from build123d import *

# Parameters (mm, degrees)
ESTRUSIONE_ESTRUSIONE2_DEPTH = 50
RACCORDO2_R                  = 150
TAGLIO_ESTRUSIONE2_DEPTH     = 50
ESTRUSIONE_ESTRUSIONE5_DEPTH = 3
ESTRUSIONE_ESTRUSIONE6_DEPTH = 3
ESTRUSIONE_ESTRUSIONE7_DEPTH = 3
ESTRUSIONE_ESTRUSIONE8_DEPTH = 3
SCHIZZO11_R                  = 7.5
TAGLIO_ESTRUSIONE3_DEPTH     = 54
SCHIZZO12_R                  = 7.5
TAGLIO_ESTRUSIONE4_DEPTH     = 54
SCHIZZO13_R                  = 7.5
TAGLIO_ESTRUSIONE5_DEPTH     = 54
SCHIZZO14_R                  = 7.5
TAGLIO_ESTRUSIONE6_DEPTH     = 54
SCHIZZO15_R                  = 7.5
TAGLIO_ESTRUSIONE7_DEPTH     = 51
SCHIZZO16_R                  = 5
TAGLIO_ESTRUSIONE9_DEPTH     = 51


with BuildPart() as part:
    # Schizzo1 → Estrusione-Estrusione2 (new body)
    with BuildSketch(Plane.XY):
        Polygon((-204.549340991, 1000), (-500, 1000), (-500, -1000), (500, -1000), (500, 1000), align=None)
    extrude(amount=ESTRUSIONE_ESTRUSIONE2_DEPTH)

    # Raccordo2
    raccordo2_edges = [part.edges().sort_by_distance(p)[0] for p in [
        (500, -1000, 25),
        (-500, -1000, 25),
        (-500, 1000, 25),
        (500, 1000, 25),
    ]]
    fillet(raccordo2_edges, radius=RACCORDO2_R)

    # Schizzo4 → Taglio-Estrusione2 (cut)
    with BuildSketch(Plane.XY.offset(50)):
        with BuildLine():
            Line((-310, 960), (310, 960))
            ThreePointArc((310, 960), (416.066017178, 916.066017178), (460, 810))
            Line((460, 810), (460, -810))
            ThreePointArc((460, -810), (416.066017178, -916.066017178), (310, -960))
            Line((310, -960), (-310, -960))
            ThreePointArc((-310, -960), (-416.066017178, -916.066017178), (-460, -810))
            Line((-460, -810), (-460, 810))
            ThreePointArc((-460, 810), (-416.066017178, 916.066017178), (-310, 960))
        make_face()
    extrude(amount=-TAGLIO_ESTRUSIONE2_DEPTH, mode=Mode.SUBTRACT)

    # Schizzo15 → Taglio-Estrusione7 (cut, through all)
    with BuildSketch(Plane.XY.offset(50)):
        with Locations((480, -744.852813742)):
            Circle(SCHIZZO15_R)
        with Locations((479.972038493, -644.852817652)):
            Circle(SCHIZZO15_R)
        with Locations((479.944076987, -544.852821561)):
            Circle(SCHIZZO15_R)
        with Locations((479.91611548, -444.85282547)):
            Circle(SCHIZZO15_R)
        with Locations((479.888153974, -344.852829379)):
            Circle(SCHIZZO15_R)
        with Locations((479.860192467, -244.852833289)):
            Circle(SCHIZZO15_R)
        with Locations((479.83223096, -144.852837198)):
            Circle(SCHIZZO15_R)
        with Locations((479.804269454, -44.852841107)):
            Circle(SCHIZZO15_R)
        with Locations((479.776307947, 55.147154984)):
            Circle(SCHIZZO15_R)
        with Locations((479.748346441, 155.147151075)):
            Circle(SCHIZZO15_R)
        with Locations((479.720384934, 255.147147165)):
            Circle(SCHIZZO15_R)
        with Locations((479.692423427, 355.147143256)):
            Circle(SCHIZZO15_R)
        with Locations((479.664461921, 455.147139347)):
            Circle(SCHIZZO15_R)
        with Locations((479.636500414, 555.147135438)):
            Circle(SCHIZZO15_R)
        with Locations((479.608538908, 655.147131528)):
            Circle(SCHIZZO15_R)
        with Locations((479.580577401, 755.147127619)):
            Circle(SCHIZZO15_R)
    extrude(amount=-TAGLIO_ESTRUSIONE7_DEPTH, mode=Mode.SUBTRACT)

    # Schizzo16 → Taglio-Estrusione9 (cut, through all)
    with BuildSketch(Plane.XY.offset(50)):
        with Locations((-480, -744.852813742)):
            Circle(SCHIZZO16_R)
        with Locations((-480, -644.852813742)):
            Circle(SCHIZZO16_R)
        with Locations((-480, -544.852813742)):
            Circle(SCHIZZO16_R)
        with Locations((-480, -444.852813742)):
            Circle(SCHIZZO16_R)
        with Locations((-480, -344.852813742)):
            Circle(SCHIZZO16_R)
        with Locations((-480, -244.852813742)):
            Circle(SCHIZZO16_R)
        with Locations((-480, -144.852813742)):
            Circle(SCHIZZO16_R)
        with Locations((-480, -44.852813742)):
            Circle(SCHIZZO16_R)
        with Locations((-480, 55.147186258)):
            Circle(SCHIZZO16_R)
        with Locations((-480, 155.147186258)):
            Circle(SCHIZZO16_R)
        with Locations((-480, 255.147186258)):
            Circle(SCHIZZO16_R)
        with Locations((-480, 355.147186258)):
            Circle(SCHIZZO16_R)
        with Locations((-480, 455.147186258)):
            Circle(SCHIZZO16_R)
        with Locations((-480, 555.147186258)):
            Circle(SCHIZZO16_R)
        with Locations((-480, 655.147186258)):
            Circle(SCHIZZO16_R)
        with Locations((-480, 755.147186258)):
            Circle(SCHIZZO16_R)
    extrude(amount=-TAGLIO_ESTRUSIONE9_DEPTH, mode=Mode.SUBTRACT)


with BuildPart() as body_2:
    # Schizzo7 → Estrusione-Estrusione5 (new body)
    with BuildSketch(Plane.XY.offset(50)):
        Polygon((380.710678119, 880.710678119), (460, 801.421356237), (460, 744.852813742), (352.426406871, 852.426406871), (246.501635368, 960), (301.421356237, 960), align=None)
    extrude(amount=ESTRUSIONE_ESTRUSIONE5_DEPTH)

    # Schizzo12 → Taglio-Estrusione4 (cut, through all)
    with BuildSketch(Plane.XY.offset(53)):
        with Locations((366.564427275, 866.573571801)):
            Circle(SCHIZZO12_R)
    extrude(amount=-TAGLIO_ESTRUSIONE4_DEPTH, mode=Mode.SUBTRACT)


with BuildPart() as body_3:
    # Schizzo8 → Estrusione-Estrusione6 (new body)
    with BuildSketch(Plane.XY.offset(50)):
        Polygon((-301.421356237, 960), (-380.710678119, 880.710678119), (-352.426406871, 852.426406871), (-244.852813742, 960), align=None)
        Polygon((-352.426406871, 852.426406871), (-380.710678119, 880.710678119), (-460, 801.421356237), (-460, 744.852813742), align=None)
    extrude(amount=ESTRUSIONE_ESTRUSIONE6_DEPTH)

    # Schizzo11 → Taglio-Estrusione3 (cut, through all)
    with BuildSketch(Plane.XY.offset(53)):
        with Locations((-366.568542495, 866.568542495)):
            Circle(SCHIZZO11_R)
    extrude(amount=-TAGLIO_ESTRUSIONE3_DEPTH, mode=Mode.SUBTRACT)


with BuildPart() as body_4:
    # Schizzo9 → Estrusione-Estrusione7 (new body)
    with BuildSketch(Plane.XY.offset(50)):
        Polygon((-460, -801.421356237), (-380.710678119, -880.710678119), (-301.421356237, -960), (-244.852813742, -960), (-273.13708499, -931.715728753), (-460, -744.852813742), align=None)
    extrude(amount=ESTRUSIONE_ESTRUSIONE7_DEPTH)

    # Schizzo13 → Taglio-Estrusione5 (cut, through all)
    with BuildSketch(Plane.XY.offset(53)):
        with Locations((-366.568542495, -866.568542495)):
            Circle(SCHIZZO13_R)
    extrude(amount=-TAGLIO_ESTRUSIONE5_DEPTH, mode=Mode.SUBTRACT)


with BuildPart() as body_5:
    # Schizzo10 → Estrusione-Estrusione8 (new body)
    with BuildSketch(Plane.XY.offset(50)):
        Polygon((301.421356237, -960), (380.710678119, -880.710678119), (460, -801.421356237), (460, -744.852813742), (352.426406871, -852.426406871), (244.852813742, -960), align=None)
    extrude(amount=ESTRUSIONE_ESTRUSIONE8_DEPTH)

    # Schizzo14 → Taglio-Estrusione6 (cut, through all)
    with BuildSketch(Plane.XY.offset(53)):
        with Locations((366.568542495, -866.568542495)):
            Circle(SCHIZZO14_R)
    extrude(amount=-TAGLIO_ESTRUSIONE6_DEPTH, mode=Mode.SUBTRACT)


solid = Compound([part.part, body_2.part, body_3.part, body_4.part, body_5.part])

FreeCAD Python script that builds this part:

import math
import FreeCAD as App
import Part
import Sketcher

V = App.Vector
Q = App.Units.Quantity


def edges_at(feature, points):
    """Names of the edges that pass closest to the given points."""
    edges = feature.Shape.Edges
    near = lambda p: min(range(len(edges)), key=lambda i: edges[i].distToShape(Part.Vertex(*p))[0])
    return sorted({f"Edge{near(p) + 1}" for p in points})

doc = App.newDocument("Part")
body = doc.addObject("PartDesign::Body", "Body")

sketch1 = doc.addObject("Sketcher::SketchObject", "Sketch")
body.addObject(sketch1)
sketch1.AttachmentSupport = (doc.XY_Plane, [""])
sketch1.MapMode = "FlatFace"
sketch1.addGeometry([
    Part.LineSegment(V(-500, 1000, 0), V(-500, -1000, 0)),
    Part.LineSegment(V(-500, -1000, 0), V(500, -1000, 0)),
    Part.LineSegment(V(500, -1000, 0), V(500, 1000, 0)),
    Part.LineSegment(V(500, 1000, 0), V(-500, 1000, 0)),
], False)
sketch1.addConstraint([
    Sketcher.Constraint("Coincident", 0, 2, 1, 1),
    Sketcher.Constraint("Coincident", 1, 2, 2, 1),
    Sketcher.Constraint("Coincident", 2, 2, 3, 1),
    Sketcher.Constraint("Coincident", 3, 2, 0, 1),
    Sketcher.Constraint("Vertical", 0),
    Sketcher.Constraint("Horizontal", 1),
    Sketcher.Constraint("Vertical", 2),
    Sketcher.Constraint("Horizontal", 3),
    Sketcher.Constraint("Symmetric", 0, 2, 2, 2, -1, 1),
    Sketcher.Constraint("DistanceX", 1, 1, 1, 2, Q("1000 mm")),
    Sketcher.Constraint("DistanceY", 0, 2, 0, 1, Q("2000 mm")),
])
pad1 = doc.addObject("PartDesign::Pad", "Pad")
body.addObject(pad1)
pad1.Profile = sketch1
pad1.Length = 50
doc.recompute()

fillet = doc.addObject("PartDesign::Fillet", "Fillet")
body.addObject(fillet)
fillet.Base = (pad1, edges_at(pad1, [
    (500, -1000, 25),
    (-500, -1000, 25),
    (-500, 1000, 25),
    (500, 1000, 25),
]))
fillet.Radius = 150

sketch2 = doc.addObject("Sketcher::SketchObject", "Sketch001")
body.addObject(sketch2)
sketch2.AttachmentSupport = (doc.XY_Plane, [""])
sketch2.MapMode = "FlatFace"
sketch2.AttachmentOffset = App.Placement(V(0, 0, 50), App.Rotation())
sketch2.addGeometry([
    Part.LineSegment(V(310, 960, 0), V(-310, 960, 0)),
    Part.ArcOfCircle(Part.Circle(V(-310, 810, 0), V(0, 0, 1), 150), math.radians(90), math.radians(180)),
    Part.LineSegment(V(-460, 810, 0), V(-460, -810, 0)),
    Part.ArcOfCircle(Part.Circle(V(-310, -810, 0), V(0, 0, 1), 150), math.radians(180), math.radians(270)),
    Part.LineSegment(V(-310, -960, 0), V(310, -960, 0)),
    Part.ArcOfCircle(Part.Circle(V(310, -810, 0), V(0, 0, 1), 150), math.radians(-90), math.radians(0)),
    Part.LineSegment(V(460, -810, 0), V(460, 810, 0)),
    Part.ArcOfCircle(Part.Circle(V(310, 810, 0), V(0, 0, 1), 150), math.radians(0), math.radians(90)),
], False)
sketch2.addConstraint([
    Sketcher.Constraint("Tangent", 0, 2, 1, 1),
    Sketcher.Constraint("Tangent", 1, 2, 2, 1),
    Sketcher.Constraint("Tangent", 2, 2, 3, 1),
    Sketcher.Constraint("Tangent", 3, 2, 4, 1),
    Sketcher.Constraint("Tangent", 4, 2, 5, 1),
    Sketcher.Constraint("Tangent", 5, 2, 6, 1),
    Sketcher.Constraint("Tangent", 6, 2, 7, 1),
    Sketcher.Constraint("Tangent", 7, 2, 0, 1),
    Sketcher.Constraint("Horizontal", 0),
    Sketcher.Constraint("Vertical", 2),
    Sketcher.Constraint("Horizontal", 4),
    Sketcher.Constraint("Vertical", 6),
    Sketcher.Constraint("Equal", 1, 3),
    Sketcher.Constraint("Equal", 3, 5),
    Sketcher.Constraint("Equal", 5, 7),
    Sketcher.Constraint("Symmetric", 1, 3, 5, 3, -1, 1),
    Sketcher.Constraint("Radius", 1, Q("150 mm")),
    Sketcher.Constraint("DistanceX", 0, 2, 0, 1, Q("620 mm")),
    Sketcher.Constraint("DistanceY", 2, 2, 2, 1, Q("1620 mm")),
])
pocket1 = doc.addObject("PartDesign::Pocket", "Pocket")
body.addObject(pocket1)
pocket1.Profile = sketch2
pocket1.Length = 50

sketch3 = doc.addObject("Sketcher::SketchObject", "Sketch002")
body.addObject(sketch3)
sketch3.AttachmentSupport = (doc.XY_Plane, [""])
sketch3.MapMode = "FlatFace"
sketch3.AttachmentOffset = App.Placement(V(0, 0, 50), App.Rotation())
sketch3.addGeometry([
    Part.Circle(V(480, -744.852814, 0), V(0, 0, 1), 7.5),
    Part.Circle(V(479.972038, -644.852818, 0), V(0, 0, 1), 7.5),
    Part.Circle(V(479.944077, -544.852822, 0), V(0, 0, 1), 7.5),
    Part.Circle(V(479.916115, -444.852825, 0), V(0, 0, 1), 7.5),
    Part.Circle(V(479.888154, -344.852829, 0), V(0, 0, 1), 7.5),
    Part.Circle(V(479.860192, -244.852833, 0), V(0, 0, 1), 7.5),
    Part.Circle(V(479.832231, -144.852837, 0), V(0, 0, 1), 7.5),
    Part.Circle(V(479.804269, -44.852841, 0), V(0, 0, 1), 7.5),
    Part.Circle(V(479.776308, 55.147155, 0), V(0, 0, 1), 7.5),
    Part.Circle(V(479.748346, 155.147151, 0), V(0, 0, 1), 7.5),
    Part.Circle(V(479.720385, 255.147147, 0), V(0, 0, 1), 7.5),
    Part.Circle(V(479.692423, 355.147143, 0), V(0, 0, 1), 7.5),
    Part.Circle(V(479.664462, 455.147139, 0), V(0, 0, 1), 7.5),
    Part.Circle(V(479.6365, 555.147135, 0), V(0, 0, 1), 7.5),
    Part.Circle(V(479.608539, 655.147132, 0), V(0, 0, 1), 7.5),
    Part.Circle(V(479.580577, 755.147128, 0), V(0, 0, 1), 7.5),
], False)
sketch3.addConstraint([
    Sketcher.Constraint("Equal", 0, 1),
    Sketcher.Constraint("Equal", 1, 2),
    Sketcher.Constraint("Equal", 2, 3),
    Sketcher.Constraint("Equal", 3, 4),
    Sketcher.Constraint("Equal", 4, 5),
    Sketcher.Constraint("Equal", 5, 6),
    Sketcher.Constraint("Equal", 6, 7),
    Sketcher.Constraint("Equal", 7, 8),
    Sketcher.Constraint("Equal", 8, 9),
    Sketcher.Constraint("Equal", 9, 10),
    Sketcher.Constraint("Equal", 10, 11),
    Sketcher.Constraint("Equal", 11, 12),
    Sketcher.Constraint("Equal", 12, 13),
    Sketcher.Constraint("Equal", 13, 14),
    Sketcher.Constraint("Equal", 14, 15),
    Sketcher.Constraint("Diameter", 0, Q("15 mm")),
    Sketcher.Constraint("DistanceX", -1, 1, 0, 3, Q("480 mm")),
    Sketcher.Constraint("DistanceX", -1, 1, 13, 3, Q("479.6365 mm")),
    Sketcher.Constraint("DistanceX", -1, 1, 1, 3, Q("479.972038 mm")),
    Sketcher.Constraint("DistanceY", 2, 3, -1, 1, Q("544.852822 mm")),
    Sketcher.Constraint("DistanceY", 4, 3, -1, 1, Q("344.852829 mm")),
    Sketcher.Constraint("DistanceX", -1, 1, 6, 3, Q("479.832231 mm")),
    Sketcher.Constraint("DistanceX", -1, 1, 7, 3, Q("479.804269 mm")),
    Sketcher.Constraint("DistanceY", 7, 3, -1, 1, Q("44.852841 mm")),
    Sketcher.Constraint("DistanceY", -1, 1, 9, 3, Q("155.147151 mm")),
    Sketcher.Constraint("DistanceX", -1, 1, 12, 3, Q("479.664462 mm")),
    Sketcher.Constraint("DistanceY", -1, 1, 12, 3, Q("455.147139 mm")),
    Sketcher.Constraint("DistanceX", -1, 1, 14, 3, Q("479.608539 mm")),
    Sketcher.Constraint("DistanceY", -1, 1, 14, 3, Q("655.147132 mm")),
    Sketcher.Constraint("DistanceX", 2, 3, 1, 3, Q("0.027962 mm")),
    Sketcher.Constraint("DistanceX", 3, 3, 2, 3, Q("0.027962 mm")),
    Sketcher.Constraint("DistanceY", 0, 3, 3, 3, Q("299.999988 mm")),
    Sketcher.Constraint("DistanceX", 4, 3, 3, 3, Q("0.027962 mm")),
    Sketcher.Constraint("DistanceY", 1, 3, 4, 3, Q("299.999988 mm")),
    Sketcher.Constraint("DistanceX", 5, 3, 4, 3, Q("0.027962 mm")),
    Sketcher.Constraint("DistanceY", 2, 3, 5, 3, Q("299.999988 mm")),
    Sketcher.Constraint("DistanceY", 0, 3, 5, 3, Q("499.99998 mm")),
    Sketcher.Constraint("DistanceY", 3, 3, 6, 3, Q("299.999988 mm")),
    Sketcher.Constraint("DistanceX", 8, 3, 7, 3, Q("0.027962 mm")),
    Sketcher.Constraint("DistanceY", 5, 3, 8, 3, Q("299.999988 mm")),
    Sketcher.Constraint("DistanceX", 9, 3, 8, 3, Q("0.027962 mm")),
    Sketcher.Constraint("DistanceX", 10, 3, 9, 3, Q("0.027962 mm")),
    Sketcher.Constraint("DistanceY", 7, 3, 10, 3, Q("299.999988 mm")),
    Sketcher.Constraint("DistanceX", 11, 3, 10, 3, Q("0.027962 mm")),
    Sketcher.Constraint("DistanceY", 8, 3, 11, 3, Q("299.999988 mm")),
    Sketcher.Constraint("DistanceY", 10, 3, 13, 3, Q("299.999988 mm")),
    Sketcher.Constraint("DistanceX", 15, 3, 14, 3, Q("0.027962 mm")),
    Sketcher.Constraint("DistanceY", 12, 3, 15, 3, Q("299.999988 mm")),
])
pocket2 = doc.addObject("PartDesign::Pocket", "Pocket001")
body.addObject(pocket2)
pocket2.Profile = sketch3
pocket2.Type = "ThroughAll"

sketch4 = doc.addObject("Sketcher::SketchObject", "Sketch003")
body.addObject(sketch4)
sketch4.AttachmentSupport = (doc.XY_Plane, [""])
sketch4.MapMode = "FlatFace"
sketch4.AttachmentOffset = App.Placement(V(0, 0, 50), App.Rotation())
sketch4.addGeometry([
    Part.Circle(V(-480, -744.852814, 0), V(0, 0, 1), 5),
    Part.Circle(V(-480, -644.852814, 0), V(0, 0, 1), 5),
    Part.Circle(V(-480, -544.852814, 0), V(0, 0, 1), 5),
    Part.Circle(V(-480, -444.852814, 0), V(0, 0, 1), 5),
    Part.Circle(V(-480, -344.852814, 0), V(0, 0, 1), 5),
    Part.Circle(V(-480, -244.852814, 0), V(0, 0, 1), 5),
    Part.Circle(V(-480, -144.852814, 0), V(0, 0, 1), 5),
    Part.Circle(V(-480, -44.852814, 0), V(0, 0, 1), 5),
    Part.Circle(V(-480, 55.147186, 0), V(0, 0, 1), 5),
    Part.Circle(V(-480, 155.147186, 0), V(0, 0, 1), 5),
    Part.Circle(V(-480, 255.147186, 0), V(0, 0, 1), 5),
    Part.Circle(V(-480, 355.147186, 0), V(0, 0, 1), 5),
    Part.Circle(V(-480, 455.147186, 0), V(0, 0, 1), 5),
    Part.Circle(V(-480, 555.147186, 0), V(0, 0, 1), 5),
    Part.Circle(V(-480, 655.147186, 0), V(0, 0, 1), 5),
    Part.Circle(V(-480, 755.147186, 0), V(0, 0, 1), 5),
], False)
sketch4.addConstraint([
    Sketcher.Constraint("Equal", 0, 1),
    Sketcher.Constraint("Equal", 1, 2),
    Sketcher.Constraint("Equal", 2, 3),
    Sketcher.Constraint("Equal", 3, 4),
    Sketcher.Constraint("Equal", 4, 5),
    Sketcher.Constraint("Equal", 5, 6),
    Sketcher.Constraint("Equal", 6, 7),
    Sketcher.Constraint("Equal", 7, 8),
    Sketcher.Constraint("Equal", 8, 9),
    Sketcher.Constraint("Equal", 9, 10),
    Sketcher.Constraint("Equal", 10, 11),
    Sketcher.Constraint("Equal", 11, 12),
    Sketcher.Constraint("Equal", 12, 13),
    Sketcher.Constraint("Equal", 13, 14),
    Sketcher.Constraint("Equal", 14, 15),
    Sketcher.Constraint("Vertical", 0, 3, 1, 3),
    Sketcher.Constraint("Vertical", 1, 3, 2, 3),
    Sketcher.Constraint("Vertical", 2, 3, 3, 3),
    Sketcher.Constraint("Vertical", 3, 3, 4, 3),
    Sketcher.Constraint("Vertical", 4, 3, 5, 3),
    Sketcher.Constraint("Vertical", 5, 3, 6, 3),
    Sketcher.Constraint("Vertical", 6, 3, 7, 3),
    Sketcher.Constraint("Vertical", 7, 3, 8, 3),
    Sketcher.Constraint("Vertical", 8, 3, 9, 3),
    Sketcher.Constraint("Vertical", 9, 3, 10, 3),
    Sketcher.Constraint("Vertical", 10, 3, 11, 3),
    Sketcher.Constraint("Vertical", 11, 3, 12, 3),
    Sketcher.Constraint("Vertical", 12, 3, 13, 3),
    Sketcher.Constraint("Vertical", 13, 3, 14, 3),
    Sketcher.Constraint("Vertical", 14, 3, 15, 3),
    Sketcher.Constraint("Diameter", 0, Q("10 mm")),
    Sketcher.Constraint("DistanceX", 0, 3, -1, 1, Q("480 mm")),
    Sketcher.Constraint("DistanceY", 0, 3, 1, 3, Q("100 mm")),
    Sketcher.Constraint("DistanceY", 1, 3, 2, 3, Q("100 mm")),
    Sketcher.Constraint("DistanceY", 2, 3, 3, 3, Q("100 mm")),
    Sketcher.Constraint("DistanceY", 3, 3, 4, 3, Q("100 mm")),
    Sketcher.Constraint("DistanceY", 4, 3, 5, 3, Q("100 mm")),
    Sketcher.Constraint("DistanceY", 5, 3, 6, 3, Q("100 mm")),
    Sketcher.Constraint("DistanceY", 6, 3, 7, 3, Q("100 mm")),
    Sketcher.Constraint("DistanceY", 7, 3, 8, 3, Q("100 mm")),
    Sketcher.Constraint("DistanceY", 8, 3, 9, 3, Q("100 mm")),
    Sketcher.Constraint("DistanceY", 9, 3, 10, 3, Q("100 mm")),
    Sketcher.Constraint("DistanceY", 10, 3, 11, 3, Q("100 mm")),
    Sketcher.Constraint("DistanceY", 11, 3, 12, 3, Q("100 mm")),
    Sketcher.Constraint("DistanceY", 12, 3, 13, 3, Q("100 mm")),
    Sketcher.Constraint("DistanceY", 13, 3, 14, 3, Q("100 mm")),
    Sketcher.Constraint("DistanceY", 14, 3, 15, 3, Q("100 mm")),
    Sketcher.Constraint("DistanceY", 0, 3, -1, 1, Q("744.852814 mm")),
])
pocket3 = doc.addObject("PartDesign::Pocket", "Pocket002")
body.addObject(pocket3)
pocket3.Profile = sketch4
pocket3.Type = "ThroughAll"
body2 = doc.addObject("PartDesign::Body", "Body001")

sketch5 = doc.addObject("Sketcher::SketchObject", "Sketch004")
body2.addObject(sketch5)
sketch5.AttachmentSupport = (doc.getObject("XY_Plane001"), [""])
sketch5.MapMode = "FlatFace"
sketch5.AttachmentOffset = App.Placement(V(0, 0, 50), App.Rotation())
sketch5.addGeometry([
    Part.LineSegment(V(460, 801.421356, 0), V(380.710678, 880.710678, 0)),
    Part.LineSegment(V(380.710678, 880.710678, 0), V(301.421356, 960, 0)),
    Part.LineSegment(V(301.421356, 960, 0), V(246.501635, 960, 0)),
    Part.LineSegment(V(246.501635, 960, 0), V(352.426407, 852.426407, 0)),
    Part.LineSegment(V(352.426407, 852.426407, 0), V(460, 744.852814, 0)),
    Part.LineSegment(V(460, 744.852814, 0), V(460, 801.421356, 0)),
], False)
sketch5.addConstraint([
    Sketcher.Constraint("Coincident", 0, 2, 1, 1),
    Sketcher.Constraint("Coincident", 1, 2, 2, 1),
    Sketcher.Constraint("Coincident", 2, 2, 3, 1),
    Sketcher.Constraint("Coincident", 3, 2, 4, 1),
    Sketcher.Constraint("Coincident", 4, 2, 5, 1),
    Sketcher.Constraint("Coincident", 5, 2, 0, 1),
    Sketcher.Constraint("Horizontal", 2),
    Sketcher.Constraint("Vertical", 5),
    Sketcher.Constraint("Parallel", 0, 1),
    Sketcher.Constraint("Parallel", 1, 4),
    Sketcher.Constraint("Equal", 0, 1),
    Sketcher.Constraint("Angle", 0, Q("135 deg")),
    Sketcher.Constraint("DistanceY", -1, 1, 1, 2, Q("960 mm")),
    Sketcher.Constraint("DistanceX", -1, 1, 4, 2, Q("460 mm")),
    Sketcher.Constraint("DistanceX", 2, 2, 2, 1, Q("54.919721 mm")),
    Sketcher.Constraint("DistanceY", 5, 1, 5, 2, Q("56.568542 mm")),
    Sketcher.Constraint("DistanceX", -1, 1, 0, 2, Q("380.710678 mm")),
    Sketcher.Constraint("DistanceX", 3, 2, 0, 2, Q("28.284271 mm")),
])
pad2 = doc.addObject("PartDesign::Pad", "Pad001")
body2.addObject(pad2)
pad2.Profile = sketch5
pad2.Length = 3

sketch6 = doc.addObject("Sketcher::SketchObject", "Sketch005")
body2.addObject(sketch6)
sketch6.AttachmentSupport = (doc.getObject("XY_Plane001"), [""])
sketch6.MapMode = "FlatFace"
sketch6.AttachmentOffset = App.Placement(V(0, 0, 53), App.Rotation())
sketch6.addGeometry(Part.Circle(V(366.564427, 866.573572, 0), V(0, 0, 1), 7.5), False)
sketch6.addConstraint([
    Sketcher.Constraint("Diameter", 0, Q("15 mm")),
    Sketcher.Constraint("DistanceY", -1, 1, 0, 3, Q("866.573572 mm")),
    Sketcher.Constraint("DistanceX", -1, 1, 0, 3, Q("366.564427 mm")),
])
pocket4 = doc.addObject("PartDesign::Pocket", "Pocket003")
body2.addObject(pocket4)
pocket4.Profile = sketch6
pocket4.Type = "ThroughAll"
body3 = doc.addObject("PartDesign::Body", "Body002")

sketch7 = doc.addObject("Sketcher::SketchObject", "Sketch006")
body3.addObject(sketch7)
sketch7.AttachmentSupport = (doc.getObject("XY_Plane002"), [""])
sketch7.MapMode = "FlatFace"
sketch7.AttachmentOffset = App.Placement(V(0, 0, 50), App.Rotation())
sketch7.addGeometry([
    Part.LineSegment(V(-301.421356, 960, 0), V(-380.710678, 880.710678, 0)),
    Part.LineSegment(V(-380.710678, 880.710678, 0), V(-460, 801.421356, 0)),
    Part.LineSegment(V(-460, 801.421356, 0), V(-460, 744.852814, 0)),
    Part.LineSegment(V(-460, 744.852814, 0), V(-244.852814, 960, 0)),
    Part.LineSegment(V(-244.852814, 960, 0), V(-301.421356, 960, 0)),
], False)
sketch7.addConstraint([
    Sketcher.Constraint("Coincident", 0, 2, 1, 1),
    Sketcher.Constraint("Coincident", 1, 2, 2, 1),
    Sketcher.Constraint("Coincident", 2, 2, 3, 1),
    Sketcher.Constraint("Coincident", 3, 2, 4, 1),
    Sketcher.Constraint("Coincident", 4, 2, 0, 1),
    Sketcher.Constraint("Vertical", 2),
    Sketcher.Constraint("Horizontal", 4),
    Sketcher.Constraint("Parallel", 0, 1),
    Sketcher.Constraint("Parallel", 1, 3),
    Sketcher.Constraint("Equal", 4, 2),
    Sketcher.Constraint("Equal", 0, 1),
    Sketcher.Constraint("DistanceX", 1, 2, -1, 1, Q("460 mm")),
    Sketcher.Constraint("DistanceY", -1, 1, 3, 2, Q("960 mm")),
    Sketcher.Constraint("Distance", 3, Q("304.264069 mm")),
    Sketcher.Constraint("DistanceX", 4, 2, 4, 1, Q("56.568542 mm")),
])
pad3 = doc.addObject("PartDesign::Pad", "Pad002")
body3.addObject(pad3)
pad3.Profile = sketch7
pad3.Length = 3

sketch8 = doc.addObject("Sketcher::SketchObject", "Sketch007")
body3.addObject(sketch8)
sketch8.AttachmentSupport = (doc.getObject("XY_Plane002"), [""])
sketch8.MapMode = "FlatFace"
sketch8.AttachmentOffset = App.Placement(V(0, 0, 53), App.Rotation())
sketch8.addGeometry(Part.Circle(V(-366.568542, 866.568542, 0), V(0, 0, 1), 7.5), False)
sketch8.addConstraint([
    Sketcher.Constraint("Diameter", 0, Q("15 mm")),
    Sketcher.Constraint("DistanceX", 0, 3, -1, 1, Q("366.568542 mm")),
    Sketcher.Constraint("DistanceY", -1, 1, 0, 3, Q("866.568542 mm")),
])
pocket5 = doc.addObject("PartDesign::Pocket", "Pocket004")
body3.addObject(pocket5)
pocket5.Profile = sketch8
pocket5.Type = "ThroughAll"
body4 = doc.addObject("PartDesign::Body", "Body003")

sketch9 = doc.addObject("Sketcher::SketchObject", "Sketch008")
body4.addObject(sketch9)
sketch9.AttachmentSupport = (doc.getObject("XY_Plane003"), [""])
sketch9.MapMode = "FlatFace"
sketch9.AttachmentOffset = App.Placement(V(0, 0, 50), App.Rotation())
sketch9.addGeometry([
    Part.LineSegment(V(-460, -801.421356, 0), V(-380.710678, -880.710678, 0)),
    Part.LineSegment(V(-380.710678, -880.710678, 0), V(-301.421356, -960, 0)),
    Part.LineSegment(V(-301.421356, -960, 0), V(-244.852814, -960, 0)),
    Part.LineSegment(V(-244.852814, -960, 0), V(-273.137085, -931.715729, 0)),
    Part.LineSegment(V(-273.137085, -931.715729, 0), V(-460, -744.852814, 0)),
    Part.LineSegment(V(-460, -744.852814, 0), V(-460, -801.421356, 0)),
], False)
sketch9.addConstraint([
    Sketcher.Constraint("Coincident", 0, 2, 1, 1),
    Sketcher.Constraint("Coincident", 1, 2, 2, 1),
    Sketcher.Constraint("Coincident", 2, 2, 3, 1),
    Sketcher.Constraint("Coincident", 3, 2, 4, 1),
    Sketcher.Constraint("Coincident", 4, 2, 5, 1),
    Sketcher.Constraint("Coincident", 5, 2, 0, 1),
    Sketcher.Constraint("Horizontal", 2),
    Sketcher.Constraint("Vertical", 5),
    Sketcher.Constraint("Parallel", 0, 1),
    Sketcher.Constraint("Parallel", 1, 3),
    Sketcher.Constraint("Parallel", 3, 4),
    Sketcher.Constraint("Equal", 2, 5),
    Sketcher.Constraint("Equal", 0, 1),
    Sketcher.Constraint("Distance", 3, Q("40 mm")),
    Sketcher.Constraint("DistanceY", 1, 2, -1, 1, Q("960 mm")),
    Sketcher.Constraint("DistanceX", 4, 2, -1, 1, Q("460 mm")),
    Sketcher.Constraint("Distance", 4, Q("264.264069 mm")),
    Sketcher.Constraint("DistanceX", 2, 1, 2, 2, Q("56.568542 mm")),
])
pad4 = doc.addObject("PartDesign::Pad", "Pad003")
body4.addObject(pad4)
pad4.Profile = sketch9
pad4.Length = 3

sketch10 = doc.addObject("Sketcher::SketchObject", "Sketch009")
body4.addObject(sketch10)
sketch10.AttachmentSupport = (doc.getObject("XY_Plane003"), [""])
sketch10.MapMode = "FlatFace"
sketch10.AttachmentOffset = App.Placement(V(0, 0, 53), App.Rotation())
sketch10.addGeometry(Part.Circle(V(-366.568542, -866.568542, 0), V(0, 0, 1), 7.5), False)
sketch10.addConstraint([
    Sketcher.Constraint("Diameter", 0, Q("15 mm")),
    Sketcher.Constraint("DistanceX", 0, 3, -1, 1, Q("366.568542 mm")),
    Sketcher.Constraint("DistanceY", 0, 3, -1, 1, Q("866.568542 mm")),
])
pocket6 = doc.addObject("PartDesign::Pocket", "Pocket005")
body4.addObject(pocket6)
pocket6.Profile = sketch10
pocket6.Type = "ThroughAll"
body5 = doc.addObject("PartDesign::Body", "Body004")

sketch11 = doc.addObject("Sketcher::SketchObject", "Sketch010")
body5.addObject(sketch11)
sketch11.AttachmentSupport = (doc.getObject("XY_Plane004"), [""])
sketch11.MapMode = "FlatFace"
sketch11.AttachmentOffset = App.Placement(V(0, 0, 50), App.Rotation())
sketch11.addGeometry([
    Part.LineSegment(V(301.421356, -960, 0), V(380.710678, -880.710678, 0)),
    Part.LineSegment(V(380.710678, -880.710678, 0), V(460, -801.421356, 0)),
    Part.LineSegment(V(460, -801.421356, 0), V(460, -744.852814, 0)),
    Part.LineSegment(V(460, -744.852814, 0), V(244.852814, -960, 0)),
    Part.LineSegment(V(244.852814, -960, 0), V(301.421356, -960, 0)),
], False)
sketch11.addConstraint([
    Sketcher.Constraint("Coincident", 0, 2, 1, 1),
    Sketcher.Constraint("Coincident", 1, 2, 2, 1),
    Sketcher.Constraint("Coincident", 2, 2, 3, 1),
    Sketcher.Constraint("Coincident", 3, 2, 4, 1),
    Sketcher.Constraint("Coincident", 4, 2, 0, 1),
    Sketcher.Constraint("Vertical", 2),
    Sketcher.Constraint("Horizontal", 4),
    Sketcher.Constraint("Parallel", 0, 1),
    Sketcher.Constraint("Parallel", 1, 3),
    Sketcher.Constraint("Equal", 4, 2),
    Sketcher.Constraint("Equal", 0, 1),
    Sketcher.Constraint("DistanceX", -1, 1, 1, 2, Q("460 mm")),
    Sketcher.Constraint("DistanceY", 3, 2, -1, 1, Q("960 mm")),
    Sketcher.Constraint("Distance", 3, Q("304.264069 mm")),
    Sketcher.Constraint("DistanceX", 4, 1, 4, 2, Q("56.568542 mm")),
])
pad5 = doc.addObject("PartDesign::Pad", "Pad004")
body5.addObject(pad5)
pad5.Profile = sketch11
pad5.Length = 3

sketch12 = doc.addObject("Sketcher::SketchObject", "Sketch011")
body5.addObject(sketch12)
sketch12.AttachmentSupport = (doc.getObject("XY_Plane004"), [""])
sketch12.MapMode = "FlatFace"
sketch12.AttachmentOffset = App.Placement(V(0, 0, 53), App.Rotation())
sketch12.addGeometry(Part.Circle(V(366.568542, -866.568542, 0), V(0, 0, 1), 7.5), False)
sketch12.addConstraint([
    Sketcher.Constraint("Diameter", 0, Q("15 mm")),
    Sketcher.Constraint("DistanceX", -1, 1, 0, 3, Q("366.568542 mm")),
    Sketcher.Constraint("DistanceY", 0, 3, -1, 1, Q("866.568542 mm")),
])
pocket7 = doc.addObject("PartDesign::Pocket", "Pocket006")
body5.addObject(pocket7)
pocket7.Profile = sketch12
pocket7.Type = "ThroughAll"

doc.recompute()
